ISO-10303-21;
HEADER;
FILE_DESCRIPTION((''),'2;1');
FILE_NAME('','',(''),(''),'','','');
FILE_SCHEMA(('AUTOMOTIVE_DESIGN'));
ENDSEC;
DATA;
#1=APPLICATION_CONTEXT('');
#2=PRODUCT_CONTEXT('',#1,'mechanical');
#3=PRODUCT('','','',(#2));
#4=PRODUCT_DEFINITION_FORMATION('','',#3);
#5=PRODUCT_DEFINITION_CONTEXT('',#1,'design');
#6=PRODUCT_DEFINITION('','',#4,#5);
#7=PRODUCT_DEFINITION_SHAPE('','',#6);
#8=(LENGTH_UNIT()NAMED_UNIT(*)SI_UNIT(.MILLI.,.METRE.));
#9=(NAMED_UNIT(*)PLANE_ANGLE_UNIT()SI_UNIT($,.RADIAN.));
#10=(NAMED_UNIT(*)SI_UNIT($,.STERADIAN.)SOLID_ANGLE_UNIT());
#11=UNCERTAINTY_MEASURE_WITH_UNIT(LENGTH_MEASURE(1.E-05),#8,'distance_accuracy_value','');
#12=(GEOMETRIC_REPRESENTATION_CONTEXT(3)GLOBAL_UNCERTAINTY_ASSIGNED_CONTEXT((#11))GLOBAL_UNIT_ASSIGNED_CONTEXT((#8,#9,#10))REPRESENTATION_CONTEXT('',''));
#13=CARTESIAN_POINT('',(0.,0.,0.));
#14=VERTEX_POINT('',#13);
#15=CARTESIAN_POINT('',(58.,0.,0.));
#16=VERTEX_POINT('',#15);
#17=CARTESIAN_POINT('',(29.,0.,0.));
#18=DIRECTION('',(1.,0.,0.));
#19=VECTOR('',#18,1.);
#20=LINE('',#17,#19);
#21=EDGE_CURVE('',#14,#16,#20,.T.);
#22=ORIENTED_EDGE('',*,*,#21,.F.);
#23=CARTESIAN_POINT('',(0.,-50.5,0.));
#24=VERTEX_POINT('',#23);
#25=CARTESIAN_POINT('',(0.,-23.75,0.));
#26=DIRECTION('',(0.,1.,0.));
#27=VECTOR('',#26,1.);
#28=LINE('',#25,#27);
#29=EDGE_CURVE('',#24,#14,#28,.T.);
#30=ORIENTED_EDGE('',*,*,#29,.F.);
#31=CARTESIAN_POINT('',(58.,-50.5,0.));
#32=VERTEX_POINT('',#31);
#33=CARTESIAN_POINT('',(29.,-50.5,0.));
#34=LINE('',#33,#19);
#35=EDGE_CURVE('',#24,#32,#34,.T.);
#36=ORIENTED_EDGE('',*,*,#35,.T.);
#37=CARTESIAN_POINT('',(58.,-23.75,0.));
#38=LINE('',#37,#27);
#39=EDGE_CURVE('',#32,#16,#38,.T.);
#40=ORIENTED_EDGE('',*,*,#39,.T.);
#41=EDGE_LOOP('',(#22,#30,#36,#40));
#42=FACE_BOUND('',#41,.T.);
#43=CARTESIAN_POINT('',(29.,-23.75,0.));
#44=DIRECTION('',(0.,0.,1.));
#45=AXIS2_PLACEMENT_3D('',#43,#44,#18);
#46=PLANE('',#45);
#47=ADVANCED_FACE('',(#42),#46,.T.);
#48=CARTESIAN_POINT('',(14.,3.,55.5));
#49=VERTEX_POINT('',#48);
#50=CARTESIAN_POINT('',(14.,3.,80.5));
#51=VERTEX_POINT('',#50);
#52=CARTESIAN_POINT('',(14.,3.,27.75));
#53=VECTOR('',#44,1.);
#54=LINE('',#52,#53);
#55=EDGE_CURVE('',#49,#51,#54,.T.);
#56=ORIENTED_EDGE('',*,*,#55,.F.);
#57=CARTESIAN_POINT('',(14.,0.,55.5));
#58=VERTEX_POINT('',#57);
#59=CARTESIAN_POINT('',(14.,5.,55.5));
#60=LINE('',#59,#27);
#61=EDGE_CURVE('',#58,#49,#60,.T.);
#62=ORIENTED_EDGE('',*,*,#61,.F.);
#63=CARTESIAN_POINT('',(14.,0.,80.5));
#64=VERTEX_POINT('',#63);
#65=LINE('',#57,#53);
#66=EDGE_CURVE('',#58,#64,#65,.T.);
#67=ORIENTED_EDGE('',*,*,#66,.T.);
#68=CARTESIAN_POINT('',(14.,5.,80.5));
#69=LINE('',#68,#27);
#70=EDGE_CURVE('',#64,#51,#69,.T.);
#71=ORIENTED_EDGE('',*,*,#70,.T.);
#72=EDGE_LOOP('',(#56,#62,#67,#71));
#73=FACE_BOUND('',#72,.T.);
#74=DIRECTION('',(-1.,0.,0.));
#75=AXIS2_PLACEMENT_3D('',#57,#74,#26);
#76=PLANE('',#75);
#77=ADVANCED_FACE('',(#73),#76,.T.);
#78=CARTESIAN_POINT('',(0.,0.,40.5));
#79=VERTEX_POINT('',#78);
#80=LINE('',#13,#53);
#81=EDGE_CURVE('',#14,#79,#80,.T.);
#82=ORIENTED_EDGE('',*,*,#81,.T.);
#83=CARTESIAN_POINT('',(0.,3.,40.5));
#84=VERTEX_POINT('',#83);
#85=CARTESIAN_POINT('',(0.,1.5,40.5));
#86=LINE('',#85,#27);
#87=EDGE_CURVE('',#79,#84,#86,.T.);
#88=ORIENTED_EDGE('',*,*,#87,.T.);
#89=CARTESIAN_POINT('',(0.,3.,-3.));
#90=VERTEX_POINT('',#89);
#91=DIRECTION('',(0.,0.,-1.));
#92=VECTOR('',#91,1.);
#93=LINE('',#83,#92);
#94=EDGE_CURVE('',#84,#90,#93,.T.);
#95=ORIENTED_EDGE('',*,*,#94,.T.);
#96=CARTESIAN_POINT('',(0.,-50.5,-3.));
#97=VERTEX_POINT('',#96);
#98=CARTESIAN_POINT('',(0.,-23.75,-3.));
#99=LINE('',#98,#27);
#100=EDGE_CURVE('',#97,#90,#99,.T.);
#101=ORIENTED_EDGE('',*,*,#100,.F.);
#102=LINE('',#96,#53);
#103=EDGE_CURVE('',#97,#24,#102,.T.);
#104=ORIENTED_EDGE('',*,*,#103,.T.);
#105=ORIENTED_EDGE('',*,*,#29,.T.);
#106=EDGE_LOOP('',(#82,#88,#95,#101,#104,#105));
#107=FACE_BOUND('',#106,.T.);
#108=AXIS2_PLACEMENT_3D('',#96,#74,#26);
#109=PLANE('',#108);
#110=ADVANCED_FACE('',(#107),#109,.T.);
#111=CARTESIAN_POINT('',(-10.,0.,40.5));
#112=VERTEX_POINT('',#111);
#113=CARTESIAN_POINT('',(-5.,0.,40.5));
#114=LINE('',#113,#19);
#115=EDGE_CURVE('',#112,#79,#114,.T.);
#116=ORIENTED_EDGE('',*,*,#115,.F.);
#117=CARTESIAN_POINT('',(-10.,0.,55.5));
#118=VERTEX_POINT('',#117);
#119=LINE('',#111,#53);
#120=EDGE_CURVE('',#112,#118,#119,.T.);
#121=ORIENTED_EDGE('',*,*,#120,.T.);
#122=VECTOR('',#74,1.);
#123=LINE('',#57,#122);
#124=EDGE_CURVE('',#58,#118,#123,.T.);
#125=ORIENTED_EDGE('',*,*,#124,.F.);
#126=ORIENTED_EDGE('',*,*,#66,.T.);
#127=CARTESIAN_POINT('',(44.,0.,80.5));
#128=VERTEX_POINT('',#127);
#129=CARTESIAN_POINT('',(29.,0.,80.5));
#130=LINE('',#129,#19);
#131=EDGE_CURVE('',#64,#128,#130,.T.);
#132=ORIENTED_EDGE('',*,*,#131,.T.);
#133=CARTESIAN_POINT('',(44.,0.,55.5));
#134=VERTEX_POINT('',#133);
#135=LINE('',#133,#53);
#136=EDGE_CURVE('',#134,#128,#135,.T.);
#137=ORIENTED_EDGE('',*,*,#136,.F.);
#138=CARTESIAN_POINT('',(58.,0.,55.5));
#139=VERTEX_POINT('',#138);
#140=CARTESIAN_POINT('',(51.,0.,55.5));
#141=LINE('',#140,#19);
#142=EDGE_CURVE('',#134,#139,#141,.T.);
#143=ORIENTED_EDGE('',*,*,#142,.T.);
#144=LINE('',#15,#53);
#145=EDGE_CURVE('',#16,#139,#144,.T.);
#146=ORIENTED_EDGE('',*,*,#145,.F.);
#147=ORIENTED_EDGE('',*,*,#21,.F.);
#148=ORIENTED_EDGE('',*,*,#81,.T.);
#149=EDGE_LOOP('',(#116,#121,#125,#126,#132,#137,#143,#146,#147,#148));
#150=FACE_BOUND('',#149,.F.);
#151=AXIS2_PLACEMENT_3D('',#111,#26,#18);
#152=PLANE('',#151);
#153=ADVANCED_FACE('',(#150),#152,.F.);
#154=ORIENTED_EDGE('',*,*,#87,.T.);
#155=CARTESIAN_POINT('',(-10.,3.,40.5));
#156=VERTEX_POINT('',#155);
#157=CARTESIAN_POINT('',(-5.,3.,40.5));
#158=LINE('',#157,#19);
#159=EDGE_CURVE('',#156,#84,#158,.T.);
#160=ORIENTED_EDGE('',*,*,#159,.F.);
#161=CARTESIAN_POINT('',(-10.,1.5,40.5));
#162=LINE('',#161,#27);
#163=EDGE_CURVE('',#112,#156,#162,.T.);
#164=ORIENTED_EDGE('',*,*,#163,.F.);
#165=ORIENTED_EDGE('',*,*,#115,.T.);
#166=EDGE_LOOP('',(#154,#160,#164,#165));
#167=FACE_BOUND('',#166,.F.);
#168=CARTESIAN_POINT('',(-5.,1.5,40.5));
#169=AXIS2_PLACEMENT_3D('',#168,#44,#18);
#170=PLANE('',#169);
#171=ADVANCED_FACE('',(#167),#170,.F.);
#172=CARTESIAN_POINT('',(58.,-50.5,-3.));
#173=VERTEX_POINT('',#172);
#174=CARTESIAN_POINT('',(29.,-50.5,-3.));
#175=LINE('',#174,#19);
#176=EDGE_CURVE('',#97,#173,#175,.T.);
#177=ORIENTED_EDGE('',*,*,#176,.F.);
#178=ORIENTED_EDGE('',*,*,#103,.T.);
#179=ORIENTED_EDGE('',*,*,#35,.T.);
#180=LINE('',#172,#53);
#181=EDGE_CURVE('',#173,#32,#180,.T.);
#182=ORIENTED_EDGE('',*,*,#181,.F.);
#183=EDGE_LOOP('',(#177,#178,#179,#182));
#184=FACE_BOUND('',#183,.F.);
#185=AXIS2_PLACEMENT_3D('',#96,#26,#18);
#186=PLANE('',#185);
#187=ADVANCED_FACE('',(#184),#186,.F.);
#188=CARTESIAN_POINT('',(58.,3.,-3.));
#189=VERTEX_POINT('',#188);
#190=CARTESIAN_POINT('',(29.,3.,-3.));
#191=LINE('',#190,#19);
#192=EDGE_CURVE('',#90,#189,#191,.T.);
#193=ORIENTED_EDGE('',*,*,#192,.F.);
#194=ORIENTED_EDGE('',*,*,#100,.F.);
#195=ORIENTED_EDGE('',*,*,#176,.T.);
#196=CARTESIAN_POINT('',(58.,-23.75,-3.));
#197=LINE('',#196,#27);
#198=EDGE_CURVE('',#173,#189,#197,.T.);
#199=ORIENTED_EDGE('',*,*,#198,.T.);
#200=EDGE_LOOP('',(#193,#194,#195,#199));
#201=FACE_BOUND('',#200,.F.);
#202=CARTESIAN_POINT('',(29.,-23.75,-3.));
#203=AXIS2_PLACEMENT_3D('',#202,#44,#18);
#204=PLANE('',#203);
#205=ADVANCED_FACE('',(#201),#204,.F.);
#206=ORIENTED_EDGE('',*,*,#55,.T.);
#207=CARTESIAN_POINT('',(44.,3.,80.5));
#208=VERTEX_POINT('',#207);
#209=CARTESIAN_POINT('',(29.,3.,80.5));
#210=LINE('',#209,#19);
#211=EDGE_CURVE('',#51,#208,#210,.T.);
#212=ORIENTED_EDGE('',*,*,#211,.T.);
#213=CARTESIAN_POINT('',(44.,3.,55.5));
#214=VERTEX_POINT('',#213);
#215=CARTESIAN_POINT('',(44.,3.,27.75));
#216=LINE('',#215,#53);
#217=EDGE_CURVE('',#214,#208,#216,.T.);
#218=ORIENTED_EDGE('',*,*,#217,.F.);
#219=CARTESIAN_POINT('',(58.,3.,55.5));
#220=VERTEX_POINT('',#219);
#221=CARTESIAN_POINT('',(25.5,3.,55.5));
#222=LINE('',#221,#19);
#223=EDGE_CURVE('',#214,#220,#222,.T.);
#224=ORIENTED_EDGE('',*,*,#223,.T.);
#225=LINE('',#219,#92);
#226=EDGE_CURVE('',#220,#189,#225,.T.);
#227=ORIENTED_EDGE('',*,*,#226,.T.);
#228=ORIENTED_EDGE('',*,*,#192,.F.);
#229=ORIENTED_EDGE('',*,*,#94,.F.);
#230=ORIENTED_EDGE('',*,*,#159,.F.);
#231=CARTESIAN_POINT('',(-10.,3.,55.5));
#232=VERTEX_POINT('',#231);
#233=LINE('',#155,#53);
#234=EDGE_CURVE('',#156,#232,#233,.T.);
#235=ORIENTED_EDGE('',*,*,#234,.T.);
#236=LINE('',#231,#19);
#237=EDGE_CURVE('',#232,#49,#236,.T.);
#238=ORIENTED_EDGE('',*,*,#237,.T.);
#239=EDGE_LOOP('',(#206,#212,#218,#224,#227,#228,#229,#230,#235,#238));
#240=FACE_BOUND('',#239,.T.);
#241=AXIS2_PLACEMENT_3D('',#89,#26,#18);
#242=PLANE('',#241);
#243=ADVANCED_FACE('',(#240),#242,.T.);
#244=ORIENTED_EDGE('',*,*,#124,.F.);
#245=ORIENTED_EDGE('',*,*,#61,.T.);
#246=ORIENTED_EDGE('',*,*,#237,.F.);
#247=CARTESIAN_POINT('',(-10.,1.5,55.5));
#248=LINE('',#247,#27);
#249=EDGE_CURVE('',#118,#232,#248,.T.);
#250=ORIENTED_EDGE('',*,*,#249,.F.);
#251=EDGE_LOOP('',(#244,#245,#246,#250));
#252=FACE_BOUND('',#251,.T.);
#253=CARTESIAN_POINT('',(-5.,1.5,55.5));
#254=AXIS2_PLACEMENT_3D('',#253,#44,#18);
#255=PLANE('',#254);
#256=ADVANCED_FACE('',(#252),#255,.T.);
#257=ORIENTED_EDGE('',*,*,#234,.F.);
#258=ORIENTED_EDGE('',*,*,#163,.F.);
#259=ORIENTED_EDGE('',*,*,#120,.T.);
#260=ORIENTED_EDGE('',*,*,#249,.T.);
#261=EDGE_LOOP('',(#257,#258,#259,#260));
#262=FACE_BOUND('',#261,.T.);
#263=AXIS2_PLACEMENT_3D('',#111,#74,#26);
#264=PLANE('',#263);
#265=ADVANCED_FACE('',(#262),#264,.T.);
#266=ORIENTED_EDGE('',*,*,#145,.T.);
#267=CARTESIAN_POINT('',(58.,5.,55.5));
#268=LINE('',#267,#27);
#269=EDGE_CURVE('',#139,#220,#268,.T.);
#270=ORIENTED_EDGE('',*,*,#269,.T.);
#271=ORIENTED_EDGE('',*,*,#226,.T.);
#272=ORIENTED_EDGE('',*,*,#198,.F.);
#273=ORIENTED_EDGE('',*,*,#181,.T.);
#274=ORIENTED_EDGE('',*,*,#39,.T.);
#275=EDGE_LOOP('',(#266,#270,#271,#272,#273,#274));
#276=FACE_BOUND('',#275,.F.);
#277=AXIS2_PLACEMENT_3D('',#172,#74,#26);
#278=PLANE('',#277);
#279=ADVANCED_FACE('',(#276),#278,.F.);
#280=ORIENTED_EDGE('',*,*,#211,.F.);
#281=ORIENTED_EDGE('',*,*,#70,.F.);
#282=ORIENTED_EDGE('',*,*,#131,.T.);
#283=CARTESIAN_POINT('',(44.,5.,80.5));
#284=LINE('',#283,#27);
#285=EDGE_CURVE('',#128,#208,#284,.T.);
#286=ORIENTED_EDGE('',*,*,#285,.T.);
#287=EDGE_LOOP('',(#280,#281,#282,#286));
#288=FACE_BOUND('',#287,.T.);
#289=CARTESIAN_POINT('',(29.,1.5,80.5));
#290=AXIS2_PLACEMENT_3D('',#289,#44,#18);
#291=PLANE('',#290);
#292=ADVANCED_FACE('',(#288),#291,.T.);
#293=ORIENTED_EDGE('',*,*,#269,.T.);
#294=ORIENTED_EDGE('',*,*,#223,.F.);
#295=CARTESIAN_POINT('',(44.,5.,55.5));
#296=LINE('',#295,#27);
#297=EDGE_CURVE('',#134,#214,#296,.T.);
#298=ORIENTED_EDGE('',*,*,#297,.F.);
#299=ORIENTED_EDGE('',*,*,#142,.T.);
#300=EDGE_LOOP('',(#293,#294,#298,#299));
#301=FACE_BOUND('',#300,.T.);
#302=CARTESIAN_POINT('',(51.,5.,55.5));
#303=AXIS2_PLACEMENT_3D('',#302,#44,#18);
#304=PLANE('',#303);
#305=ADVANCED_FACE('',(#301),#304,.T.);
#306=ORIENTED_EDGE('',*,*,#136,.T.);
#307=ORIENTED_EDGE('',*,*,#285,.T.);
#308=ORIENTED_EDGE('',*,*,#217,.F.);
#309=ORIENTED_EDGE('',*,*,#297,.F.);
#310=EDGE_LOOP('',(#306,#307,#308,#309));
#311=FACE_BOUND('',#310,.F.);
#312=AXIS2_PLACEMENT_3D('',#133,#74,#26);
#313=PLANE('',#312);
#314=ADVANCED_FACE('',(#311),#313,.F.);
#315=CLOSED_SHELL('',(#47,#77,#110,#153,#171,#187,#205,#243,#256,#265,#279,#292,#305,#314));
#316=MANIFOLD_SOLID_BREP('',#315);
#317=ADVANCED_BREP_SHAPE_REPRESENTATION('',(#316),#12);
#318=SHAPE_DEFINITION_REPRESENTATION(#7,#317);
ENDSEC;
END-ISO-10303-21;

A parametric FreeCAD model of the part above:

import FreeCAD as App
import Part
import Sketcher
Q = App.Units.Quantity

doc = App.newDocument("Part")
params = doc.addObject("Spreadsheet::Sheet", "Params")
for row, (alias, value) in enumerate([
    ("sketch1_width", "58 mm"),
    ("sketch1_height", "53.5 mm"),
    ("pad1_length", "3 mm"),
    ("sketch2_width", "10 mm"),
    ("sketch2_height", "3 mm"),
    ("pad2_length", "15 mm"),
    ("sketch3_width", "14 mm"),
    ("sketch3_height", "10 mm"),
    ("pad3_length", "25 mm"),
    ("sketch4_width", "14 mm"),
    ("sketch4_height", "10 mm"),
    ("pad4_length", "25 mm"),
    ("sketch5_width", "58 mm"),
    ("sketch5_height", "3 mm"),
    ("pad5_length", "80.5 mm"),
], start=1):
    params.set(f"A{row}", alias)
    params.set(f"B{row}", "=" + value)
    params.setAlias(f"B{row}", alias)

body = doc.addObject("PartDesign::Body", "Body")

sketch1 = body.newObject("Sketcher::SketchObject", "Sketch")
sketch1.AttachmentSupport = (doc.getObject("XY_Plane"), [""])
sketch1.MapMode = "FlatFace"
sketch1.AttachmentOffset = App.Placement(App.Vector(0, 0, -3), App.Rotation())
sketch1.addGeometry(Part.LineSegment(App.Vector(0, 3, 0), App.Vector(0, -50, 0)), False)
sketch1.addGeometry(Part.LineSegment(App.Vector(0, -50, 0), App.Vector(58, -50, 0)), False)
sketch1.addGeometry(Part.LineSegment(App.Vector(58, -50, 0), App.Vector(58, 3, 0)), False)
sketch1.addGeometry(Part.LineSegment(App.Vector(58, 3, 0), App.Vector(0, 3, 0)), False)
sketch1.addConstraint(Sketcher.Constraint("Coincident", 0, 2, 1, 1))
sketch1.addConstraint(Sketcher.Constraint("Coincident", 1, 2, 2, 1))
sketch1.addConstraint(Sketcher.Constraint("Coincident", 2, 2, 3, 1))
sketch1.addConstraint(Sketcher.Constraint("Coincident", 3, 2, 0, 1))
sketch1.addConstraint(Sketcher.Constraint("Vertical", 0))
sketch1.addConstraint(Sketcher.Constraint("Horizontal", 1))
sketch1.addConstraint(Sketcher.Constraint("Vertical", 2))
sketch1.addConstraint(Sketcher.Constraint("Horizontal", 3))
sketch1.addConstraint(Sketcher.Constraint("PointOnObject", 0, 2, -2))
sketch1.addConstraint(Sketcher.Constraint("DistanceX", 1, 1, 1, 2, Q("58 mm")))
sketch1.addConstraint(Sketcher.Constraint("DistanceY", 0, 2, 0, 1, Q("53.5 mm")))
sketch1.addConstraint(Sketcher.Constraint("DistanceY", -1, 1, 2, 2, Q("3 mm")))
sketch1.setExpression("Constraints[9]", "Params.sketch1_width")
sketch1.setExpression("Constraints[10]", "Params.sketch1_height")
pad1 = body.newObject("PartDesign::Pad", "Pad")
pad1.Profile = sketch1
pad1.setExpression("Length", "Params.pad1_length")
body2 = doc.addObject("PartDesign::Body", "Body001")

sketch2 = body2.newObject("Sketcher::SketchObject", "Sketch001")
sketch2.AttachmentSupport = (doc.getObject("XY_Plane001"), [""])
sketch2.MapMode = "FlatFace"
sketch2.AttachmentOffset = App.Placement(App.Vector(0, 0, 40.5), App.Rotation())
sketch2.addGeometry(Part.LineSegment(App.Vector(-10, 3, 0), App.Vector(-10, 0, 0)), False)
sketch2.addGeometry(Part.LineSegment(App.Vector(-10, 0, 0), App.Vector(0, 0, 0)), False)
sketch2.addGeometry(Part.LineSegment(App.Vector(0, 0, 0), App.Vector(0, 3, 0)), False)
sketch2.addGeometry(Part.LineSegment(App.Vector(0, 3, 0), App.Vector(-10, 3, 0)), False)
sketch2.addConstraint(Sketcher.Constraint("Coincident", 0, 2, 1, 1))
sketch2.addConstraint(Sketcher.Constraint("Coincident", 1, 2, 2, 1))
sketch2.addConstraint(Sketcher.Constraint("Coincident", 2, 2, 3, 1))
sketch2.addConstraint(Sketcher.Constraint("Coincident", 3, 2, 0, 1))
sketch2.addConstraint(Sketcher.Constraint("Vertical", 0))
sketch2.addConstraint(Sketcher.Constraint("Horizontal", 1))
sketch2.addConstraint(Sketcher.Constraint("Vertical", 2))
sketch2.addConstraint(Sketcher.Constraint("Horizontal", 3))
sketch2.addConstraint(Sketcher.Constraint("Coincident", 1, 2, -1, 1))
sketch2.addConstraint(Sketcher.Constraint("DistanceX", 1, 1, 1, 2, Q("10 mm")))
sketch2.addConstraint(Sketcher.Constraint("DistanceY", 0, 2, 0, 1, Q("3 mm")))
sketch2.setExpression("Constraints[9]", "Params.sketch2_width")
sketch2.setExpression("Constraints[10]", "Params.sketch2_height")
pad2 = body2.newObject("PartDesign::Pad", "Pad001")
pad2.Profile = sketch2
pad2.setExpression("Length", "Params.pad2_length")
body3 = doc.addObject("PartDesign::Body", "Body002")

sketch3 = body3.newObject("Sketcher::SketchObject", "Sketch002")
sketch3.AttachmentSupport = (doc.getObject("XY_Plane002"), [""])
sketch3.MapMode = "FlatFace"
sketch3.AttachmentOffset = App.Placement(App.Vector(0, 0, 55.5), App.Rotation())
sketch3.addGeometry(Part.LineSegment(App.Vector(44, 10, 0), App.Vector(44, 0, 0)), False)
sketch3.addGeometry(Part.LineSegment(App.Vector(44, 0, 0), App.Vector(58, 0, 0)), False)
sketch3.addGeometry(Part.LineSegment(App.Vector(58, 0, 0), App.Vector(58, 10, 0)), False)
sketch3.addGeometry(Part.LineSegment(App.Vector(58, 10, 0), App.Vector(44, 10, 0)), False)
sketch3.addConstraint(Sketcher.Constraint("Coincident", 0, 2, 1, 1))
sketch3.addConstraint(Sketcher.Constraint("Coincident", 1, 2, 2, 1))
sketch3.addConstraint(Sketcher.Constraint("Coincident", 2, 2, 3, 1))
sketch3.addConstraint(Sketcher.Constraint("Coincident", 3, 2, 0, 1))
sketch3.addConstraint(Sketcher.Constraint("Vertical", 0))
sketch3.addConstraint(Sketcher.Constraint("Horizontal", 1))
sketch3.addConstraint(Sketcher.Constraint("Vertical", 2))
sketch3.addConstraint(Sketcher.Constraint("Horizontal", 3))
sketch3.addConstraint(Sketcher.Constraint("PointOnObject", 0, 2, -1))
sketch3.addConstraint(Sketcher.Constraint("DistanceX", 1, 1, 1, 2, Q("14 mm")))
sketch3.addConstraint(Sketcher.Constraint("DistanceY", 0, 2, 0, 1, Q("10 mm")))
sketch3.addConstraint(Sketcher.Constraint("DistanceX", -1, 1, 0, 2, Q("44 mm")))
sketch3.setExpression("Constraints[9]", "Params.sketch3_width")
sketch3.setExpression("Constraints[10]", "Params.sketch3_height")
pad3 = body3.newObject("PartDesign::Pad", "Pad002")
pad3.Profile = sketch3
pad3.setExpression("Length", "Params.pad3_length")
body4 = doc.addObject("PartDesign::Body", "Body003")

sketch4 = body4.newObject("Sketcher::SketchObject", "Sketch003")
sketch4.AttachmentSupport = (doc.getObject("XY_Plane003"), [""])
sketch4.MapMode = "FlatFace"
sketch4.AttachmentOffset = App.Placement(App.Vector(0, 0, 55.5), App.Rotation())
sketch4.addGeometry(Part.LineSegment(App.Vector(0, 10, 0), App.Vector(0, 0, 0)), False)
sketch4.addGeometry(Part.LineSegment(App.Vector(0, 0, 0), App.Vector(14, 0, 0)), False)
sketch4.addGeometry(Part.LineSegment(App.Vector(14, 0, 0), App.Vector(14, 10, 0)), False)
sketch4.addGeometry(Part.LineSegment(App.Vector(14, 10, 0), App.Vector(0, 10, 0)), False)
sketch4.addConstraint(Sketcher.Constraint("Coincident", 0, 2, 1, 1))
sketch4.addConstraint(Sketcher.Constraint("Coincident", 1, 2, 2, 1))
sketch4.addConstraint(Sketcher.Constraint("Coincident", 2, 2, 3, 1))
sketch4.addConstraint(Sketcher.Constraint("Coincident", 3, 2, 0, 1))
sketch4.addConstraint(Sketcher.Constraint("Vertical", 0))
sketch4.addConstraint(Sketcher.Constraint("Horizontal", 1))
sketch4.addConstraint(Sketcher.Constraint("Vertical", 2))
sketch4.addConstraint(Sketcher.Constraint("Horizontal", 3))
sketch4.addConstraint(Sketcher.Constraint("Coincident", 0, 2, -1, 1))
sketch4.addConstraint(Sketcher.Constraint("DistanceX", 1, 1, 1, 2, Q("14 mm")))
sketch4.addConstraint(Sketcher.Constraint("DistanceY", 0, 2, 0, 1, Q("10 mm")))
sketch4.setExpression("Constraints[9]", "Params.sketch4_width")
sketch4.setExpression("Constraints[10]", "Params.sketch4_height")
pad4 = body4.newObject("PartDesign::Pad", "Pad003")
pad4.Profile = sketch4
pad4.setExpression("Length", "Params.pad4_length")
body5 = doc.addObject("PartDesign::Body", "Body004")

sketch5 = body5.newObject("Sketcher::SketchObject", "Sketch004")
sketch5.AttachmentSupport = (doc.getObject("XY_Plane004"), [""])
sketch5.MapMode = "FlatFace"
sketch5.addGeometry(Part.LineSegment(App.Vector(0, 3, 0), App.Vector(0, 0, 0)), False)
sketch5.addGeometry(Part.LineSegment(App.Vector(0, 0, 0), App.Vector(58, 0, 0)), False)
sketch5.addGeometry(Part.LineSegment(App.Vector(58, 0, 0), App.Vector(58, 3, 0)), False)
sketch5.addGeometry(Part.LineSegment(App.Vector(58, 3, 0), App.Vector(0, 3, 0)), False)
sketch5.addConstraint(Sketcher.Constraint("Coincident", 0, 2, 1, 1))
sketch5.addConstraint(Sketcher.Constraint("Coincident", 1, 2, 2, 1))
sketch5.addConstraint(Sketcher.Constraint("Coincident", 2, 2, 3, 1))
sketch5.addConstraint(Sketcher.Constraint("Coincident", 3, 2, 0, 1))
sketch5.addConstraint(Sketcher.Constraint("Vertical", 0))
sketch5.addConstraint(Sketcher.Constraint("Horizontal", 1))
sketch5.addConstraint(Sketcher.Constraint("Vertical", 2))
sketch5.addConstraint(Sketcher.Constraint("Horizontal", 3))
sketch5.addConstraint(Sketcher.Constraint("Coincident", 0, 2, -1, 1))
sketch5.addConstraint(Sketcher.Constraint("DistanceX", 1, 1, 1, 2, Q("58 mm")))
sketch5.addConstraint(Sketcher.Constraint("DistanceY", 0, 2, 0, 1, Q("3 mm")))
sketch5.setExpression("Constraints[9]", "Params.sketch5_width")
sketch5.setExpression("Constraints[10]", "Params.sketch5_height")
pad5 = body5.newObject("PartDesign::Pad", "Pad004")
pad5.Profile = sketch5
pad5.setExpression("Length", "Params.pad5_length")
doc.recompute()

boolean = body5.newObject("PartDesign::Boolean", "Boolean")
boolean.Type = "Cut"
boolean.addObjects([body4])
doc.recompute()

boolean2 = body5.newObject("PartDesign::Boolean", "Boolean001")
boolean2.Type = "Cut"
boolean2.addObjects([body3])
doc.recompute()

boolean3 = body5.newObject("PartDesign::Boolean", "Boolean002")
boolean3.Type = "Fuse"
boolean3.addObjects([body2])
doc.recompute()

boolean4 = body5.newObject("PartDesign::Boolean", "Boolean003")
boolean4.Type = "Fuse"
boolean4.addObjects([body])

doc.recompute()
